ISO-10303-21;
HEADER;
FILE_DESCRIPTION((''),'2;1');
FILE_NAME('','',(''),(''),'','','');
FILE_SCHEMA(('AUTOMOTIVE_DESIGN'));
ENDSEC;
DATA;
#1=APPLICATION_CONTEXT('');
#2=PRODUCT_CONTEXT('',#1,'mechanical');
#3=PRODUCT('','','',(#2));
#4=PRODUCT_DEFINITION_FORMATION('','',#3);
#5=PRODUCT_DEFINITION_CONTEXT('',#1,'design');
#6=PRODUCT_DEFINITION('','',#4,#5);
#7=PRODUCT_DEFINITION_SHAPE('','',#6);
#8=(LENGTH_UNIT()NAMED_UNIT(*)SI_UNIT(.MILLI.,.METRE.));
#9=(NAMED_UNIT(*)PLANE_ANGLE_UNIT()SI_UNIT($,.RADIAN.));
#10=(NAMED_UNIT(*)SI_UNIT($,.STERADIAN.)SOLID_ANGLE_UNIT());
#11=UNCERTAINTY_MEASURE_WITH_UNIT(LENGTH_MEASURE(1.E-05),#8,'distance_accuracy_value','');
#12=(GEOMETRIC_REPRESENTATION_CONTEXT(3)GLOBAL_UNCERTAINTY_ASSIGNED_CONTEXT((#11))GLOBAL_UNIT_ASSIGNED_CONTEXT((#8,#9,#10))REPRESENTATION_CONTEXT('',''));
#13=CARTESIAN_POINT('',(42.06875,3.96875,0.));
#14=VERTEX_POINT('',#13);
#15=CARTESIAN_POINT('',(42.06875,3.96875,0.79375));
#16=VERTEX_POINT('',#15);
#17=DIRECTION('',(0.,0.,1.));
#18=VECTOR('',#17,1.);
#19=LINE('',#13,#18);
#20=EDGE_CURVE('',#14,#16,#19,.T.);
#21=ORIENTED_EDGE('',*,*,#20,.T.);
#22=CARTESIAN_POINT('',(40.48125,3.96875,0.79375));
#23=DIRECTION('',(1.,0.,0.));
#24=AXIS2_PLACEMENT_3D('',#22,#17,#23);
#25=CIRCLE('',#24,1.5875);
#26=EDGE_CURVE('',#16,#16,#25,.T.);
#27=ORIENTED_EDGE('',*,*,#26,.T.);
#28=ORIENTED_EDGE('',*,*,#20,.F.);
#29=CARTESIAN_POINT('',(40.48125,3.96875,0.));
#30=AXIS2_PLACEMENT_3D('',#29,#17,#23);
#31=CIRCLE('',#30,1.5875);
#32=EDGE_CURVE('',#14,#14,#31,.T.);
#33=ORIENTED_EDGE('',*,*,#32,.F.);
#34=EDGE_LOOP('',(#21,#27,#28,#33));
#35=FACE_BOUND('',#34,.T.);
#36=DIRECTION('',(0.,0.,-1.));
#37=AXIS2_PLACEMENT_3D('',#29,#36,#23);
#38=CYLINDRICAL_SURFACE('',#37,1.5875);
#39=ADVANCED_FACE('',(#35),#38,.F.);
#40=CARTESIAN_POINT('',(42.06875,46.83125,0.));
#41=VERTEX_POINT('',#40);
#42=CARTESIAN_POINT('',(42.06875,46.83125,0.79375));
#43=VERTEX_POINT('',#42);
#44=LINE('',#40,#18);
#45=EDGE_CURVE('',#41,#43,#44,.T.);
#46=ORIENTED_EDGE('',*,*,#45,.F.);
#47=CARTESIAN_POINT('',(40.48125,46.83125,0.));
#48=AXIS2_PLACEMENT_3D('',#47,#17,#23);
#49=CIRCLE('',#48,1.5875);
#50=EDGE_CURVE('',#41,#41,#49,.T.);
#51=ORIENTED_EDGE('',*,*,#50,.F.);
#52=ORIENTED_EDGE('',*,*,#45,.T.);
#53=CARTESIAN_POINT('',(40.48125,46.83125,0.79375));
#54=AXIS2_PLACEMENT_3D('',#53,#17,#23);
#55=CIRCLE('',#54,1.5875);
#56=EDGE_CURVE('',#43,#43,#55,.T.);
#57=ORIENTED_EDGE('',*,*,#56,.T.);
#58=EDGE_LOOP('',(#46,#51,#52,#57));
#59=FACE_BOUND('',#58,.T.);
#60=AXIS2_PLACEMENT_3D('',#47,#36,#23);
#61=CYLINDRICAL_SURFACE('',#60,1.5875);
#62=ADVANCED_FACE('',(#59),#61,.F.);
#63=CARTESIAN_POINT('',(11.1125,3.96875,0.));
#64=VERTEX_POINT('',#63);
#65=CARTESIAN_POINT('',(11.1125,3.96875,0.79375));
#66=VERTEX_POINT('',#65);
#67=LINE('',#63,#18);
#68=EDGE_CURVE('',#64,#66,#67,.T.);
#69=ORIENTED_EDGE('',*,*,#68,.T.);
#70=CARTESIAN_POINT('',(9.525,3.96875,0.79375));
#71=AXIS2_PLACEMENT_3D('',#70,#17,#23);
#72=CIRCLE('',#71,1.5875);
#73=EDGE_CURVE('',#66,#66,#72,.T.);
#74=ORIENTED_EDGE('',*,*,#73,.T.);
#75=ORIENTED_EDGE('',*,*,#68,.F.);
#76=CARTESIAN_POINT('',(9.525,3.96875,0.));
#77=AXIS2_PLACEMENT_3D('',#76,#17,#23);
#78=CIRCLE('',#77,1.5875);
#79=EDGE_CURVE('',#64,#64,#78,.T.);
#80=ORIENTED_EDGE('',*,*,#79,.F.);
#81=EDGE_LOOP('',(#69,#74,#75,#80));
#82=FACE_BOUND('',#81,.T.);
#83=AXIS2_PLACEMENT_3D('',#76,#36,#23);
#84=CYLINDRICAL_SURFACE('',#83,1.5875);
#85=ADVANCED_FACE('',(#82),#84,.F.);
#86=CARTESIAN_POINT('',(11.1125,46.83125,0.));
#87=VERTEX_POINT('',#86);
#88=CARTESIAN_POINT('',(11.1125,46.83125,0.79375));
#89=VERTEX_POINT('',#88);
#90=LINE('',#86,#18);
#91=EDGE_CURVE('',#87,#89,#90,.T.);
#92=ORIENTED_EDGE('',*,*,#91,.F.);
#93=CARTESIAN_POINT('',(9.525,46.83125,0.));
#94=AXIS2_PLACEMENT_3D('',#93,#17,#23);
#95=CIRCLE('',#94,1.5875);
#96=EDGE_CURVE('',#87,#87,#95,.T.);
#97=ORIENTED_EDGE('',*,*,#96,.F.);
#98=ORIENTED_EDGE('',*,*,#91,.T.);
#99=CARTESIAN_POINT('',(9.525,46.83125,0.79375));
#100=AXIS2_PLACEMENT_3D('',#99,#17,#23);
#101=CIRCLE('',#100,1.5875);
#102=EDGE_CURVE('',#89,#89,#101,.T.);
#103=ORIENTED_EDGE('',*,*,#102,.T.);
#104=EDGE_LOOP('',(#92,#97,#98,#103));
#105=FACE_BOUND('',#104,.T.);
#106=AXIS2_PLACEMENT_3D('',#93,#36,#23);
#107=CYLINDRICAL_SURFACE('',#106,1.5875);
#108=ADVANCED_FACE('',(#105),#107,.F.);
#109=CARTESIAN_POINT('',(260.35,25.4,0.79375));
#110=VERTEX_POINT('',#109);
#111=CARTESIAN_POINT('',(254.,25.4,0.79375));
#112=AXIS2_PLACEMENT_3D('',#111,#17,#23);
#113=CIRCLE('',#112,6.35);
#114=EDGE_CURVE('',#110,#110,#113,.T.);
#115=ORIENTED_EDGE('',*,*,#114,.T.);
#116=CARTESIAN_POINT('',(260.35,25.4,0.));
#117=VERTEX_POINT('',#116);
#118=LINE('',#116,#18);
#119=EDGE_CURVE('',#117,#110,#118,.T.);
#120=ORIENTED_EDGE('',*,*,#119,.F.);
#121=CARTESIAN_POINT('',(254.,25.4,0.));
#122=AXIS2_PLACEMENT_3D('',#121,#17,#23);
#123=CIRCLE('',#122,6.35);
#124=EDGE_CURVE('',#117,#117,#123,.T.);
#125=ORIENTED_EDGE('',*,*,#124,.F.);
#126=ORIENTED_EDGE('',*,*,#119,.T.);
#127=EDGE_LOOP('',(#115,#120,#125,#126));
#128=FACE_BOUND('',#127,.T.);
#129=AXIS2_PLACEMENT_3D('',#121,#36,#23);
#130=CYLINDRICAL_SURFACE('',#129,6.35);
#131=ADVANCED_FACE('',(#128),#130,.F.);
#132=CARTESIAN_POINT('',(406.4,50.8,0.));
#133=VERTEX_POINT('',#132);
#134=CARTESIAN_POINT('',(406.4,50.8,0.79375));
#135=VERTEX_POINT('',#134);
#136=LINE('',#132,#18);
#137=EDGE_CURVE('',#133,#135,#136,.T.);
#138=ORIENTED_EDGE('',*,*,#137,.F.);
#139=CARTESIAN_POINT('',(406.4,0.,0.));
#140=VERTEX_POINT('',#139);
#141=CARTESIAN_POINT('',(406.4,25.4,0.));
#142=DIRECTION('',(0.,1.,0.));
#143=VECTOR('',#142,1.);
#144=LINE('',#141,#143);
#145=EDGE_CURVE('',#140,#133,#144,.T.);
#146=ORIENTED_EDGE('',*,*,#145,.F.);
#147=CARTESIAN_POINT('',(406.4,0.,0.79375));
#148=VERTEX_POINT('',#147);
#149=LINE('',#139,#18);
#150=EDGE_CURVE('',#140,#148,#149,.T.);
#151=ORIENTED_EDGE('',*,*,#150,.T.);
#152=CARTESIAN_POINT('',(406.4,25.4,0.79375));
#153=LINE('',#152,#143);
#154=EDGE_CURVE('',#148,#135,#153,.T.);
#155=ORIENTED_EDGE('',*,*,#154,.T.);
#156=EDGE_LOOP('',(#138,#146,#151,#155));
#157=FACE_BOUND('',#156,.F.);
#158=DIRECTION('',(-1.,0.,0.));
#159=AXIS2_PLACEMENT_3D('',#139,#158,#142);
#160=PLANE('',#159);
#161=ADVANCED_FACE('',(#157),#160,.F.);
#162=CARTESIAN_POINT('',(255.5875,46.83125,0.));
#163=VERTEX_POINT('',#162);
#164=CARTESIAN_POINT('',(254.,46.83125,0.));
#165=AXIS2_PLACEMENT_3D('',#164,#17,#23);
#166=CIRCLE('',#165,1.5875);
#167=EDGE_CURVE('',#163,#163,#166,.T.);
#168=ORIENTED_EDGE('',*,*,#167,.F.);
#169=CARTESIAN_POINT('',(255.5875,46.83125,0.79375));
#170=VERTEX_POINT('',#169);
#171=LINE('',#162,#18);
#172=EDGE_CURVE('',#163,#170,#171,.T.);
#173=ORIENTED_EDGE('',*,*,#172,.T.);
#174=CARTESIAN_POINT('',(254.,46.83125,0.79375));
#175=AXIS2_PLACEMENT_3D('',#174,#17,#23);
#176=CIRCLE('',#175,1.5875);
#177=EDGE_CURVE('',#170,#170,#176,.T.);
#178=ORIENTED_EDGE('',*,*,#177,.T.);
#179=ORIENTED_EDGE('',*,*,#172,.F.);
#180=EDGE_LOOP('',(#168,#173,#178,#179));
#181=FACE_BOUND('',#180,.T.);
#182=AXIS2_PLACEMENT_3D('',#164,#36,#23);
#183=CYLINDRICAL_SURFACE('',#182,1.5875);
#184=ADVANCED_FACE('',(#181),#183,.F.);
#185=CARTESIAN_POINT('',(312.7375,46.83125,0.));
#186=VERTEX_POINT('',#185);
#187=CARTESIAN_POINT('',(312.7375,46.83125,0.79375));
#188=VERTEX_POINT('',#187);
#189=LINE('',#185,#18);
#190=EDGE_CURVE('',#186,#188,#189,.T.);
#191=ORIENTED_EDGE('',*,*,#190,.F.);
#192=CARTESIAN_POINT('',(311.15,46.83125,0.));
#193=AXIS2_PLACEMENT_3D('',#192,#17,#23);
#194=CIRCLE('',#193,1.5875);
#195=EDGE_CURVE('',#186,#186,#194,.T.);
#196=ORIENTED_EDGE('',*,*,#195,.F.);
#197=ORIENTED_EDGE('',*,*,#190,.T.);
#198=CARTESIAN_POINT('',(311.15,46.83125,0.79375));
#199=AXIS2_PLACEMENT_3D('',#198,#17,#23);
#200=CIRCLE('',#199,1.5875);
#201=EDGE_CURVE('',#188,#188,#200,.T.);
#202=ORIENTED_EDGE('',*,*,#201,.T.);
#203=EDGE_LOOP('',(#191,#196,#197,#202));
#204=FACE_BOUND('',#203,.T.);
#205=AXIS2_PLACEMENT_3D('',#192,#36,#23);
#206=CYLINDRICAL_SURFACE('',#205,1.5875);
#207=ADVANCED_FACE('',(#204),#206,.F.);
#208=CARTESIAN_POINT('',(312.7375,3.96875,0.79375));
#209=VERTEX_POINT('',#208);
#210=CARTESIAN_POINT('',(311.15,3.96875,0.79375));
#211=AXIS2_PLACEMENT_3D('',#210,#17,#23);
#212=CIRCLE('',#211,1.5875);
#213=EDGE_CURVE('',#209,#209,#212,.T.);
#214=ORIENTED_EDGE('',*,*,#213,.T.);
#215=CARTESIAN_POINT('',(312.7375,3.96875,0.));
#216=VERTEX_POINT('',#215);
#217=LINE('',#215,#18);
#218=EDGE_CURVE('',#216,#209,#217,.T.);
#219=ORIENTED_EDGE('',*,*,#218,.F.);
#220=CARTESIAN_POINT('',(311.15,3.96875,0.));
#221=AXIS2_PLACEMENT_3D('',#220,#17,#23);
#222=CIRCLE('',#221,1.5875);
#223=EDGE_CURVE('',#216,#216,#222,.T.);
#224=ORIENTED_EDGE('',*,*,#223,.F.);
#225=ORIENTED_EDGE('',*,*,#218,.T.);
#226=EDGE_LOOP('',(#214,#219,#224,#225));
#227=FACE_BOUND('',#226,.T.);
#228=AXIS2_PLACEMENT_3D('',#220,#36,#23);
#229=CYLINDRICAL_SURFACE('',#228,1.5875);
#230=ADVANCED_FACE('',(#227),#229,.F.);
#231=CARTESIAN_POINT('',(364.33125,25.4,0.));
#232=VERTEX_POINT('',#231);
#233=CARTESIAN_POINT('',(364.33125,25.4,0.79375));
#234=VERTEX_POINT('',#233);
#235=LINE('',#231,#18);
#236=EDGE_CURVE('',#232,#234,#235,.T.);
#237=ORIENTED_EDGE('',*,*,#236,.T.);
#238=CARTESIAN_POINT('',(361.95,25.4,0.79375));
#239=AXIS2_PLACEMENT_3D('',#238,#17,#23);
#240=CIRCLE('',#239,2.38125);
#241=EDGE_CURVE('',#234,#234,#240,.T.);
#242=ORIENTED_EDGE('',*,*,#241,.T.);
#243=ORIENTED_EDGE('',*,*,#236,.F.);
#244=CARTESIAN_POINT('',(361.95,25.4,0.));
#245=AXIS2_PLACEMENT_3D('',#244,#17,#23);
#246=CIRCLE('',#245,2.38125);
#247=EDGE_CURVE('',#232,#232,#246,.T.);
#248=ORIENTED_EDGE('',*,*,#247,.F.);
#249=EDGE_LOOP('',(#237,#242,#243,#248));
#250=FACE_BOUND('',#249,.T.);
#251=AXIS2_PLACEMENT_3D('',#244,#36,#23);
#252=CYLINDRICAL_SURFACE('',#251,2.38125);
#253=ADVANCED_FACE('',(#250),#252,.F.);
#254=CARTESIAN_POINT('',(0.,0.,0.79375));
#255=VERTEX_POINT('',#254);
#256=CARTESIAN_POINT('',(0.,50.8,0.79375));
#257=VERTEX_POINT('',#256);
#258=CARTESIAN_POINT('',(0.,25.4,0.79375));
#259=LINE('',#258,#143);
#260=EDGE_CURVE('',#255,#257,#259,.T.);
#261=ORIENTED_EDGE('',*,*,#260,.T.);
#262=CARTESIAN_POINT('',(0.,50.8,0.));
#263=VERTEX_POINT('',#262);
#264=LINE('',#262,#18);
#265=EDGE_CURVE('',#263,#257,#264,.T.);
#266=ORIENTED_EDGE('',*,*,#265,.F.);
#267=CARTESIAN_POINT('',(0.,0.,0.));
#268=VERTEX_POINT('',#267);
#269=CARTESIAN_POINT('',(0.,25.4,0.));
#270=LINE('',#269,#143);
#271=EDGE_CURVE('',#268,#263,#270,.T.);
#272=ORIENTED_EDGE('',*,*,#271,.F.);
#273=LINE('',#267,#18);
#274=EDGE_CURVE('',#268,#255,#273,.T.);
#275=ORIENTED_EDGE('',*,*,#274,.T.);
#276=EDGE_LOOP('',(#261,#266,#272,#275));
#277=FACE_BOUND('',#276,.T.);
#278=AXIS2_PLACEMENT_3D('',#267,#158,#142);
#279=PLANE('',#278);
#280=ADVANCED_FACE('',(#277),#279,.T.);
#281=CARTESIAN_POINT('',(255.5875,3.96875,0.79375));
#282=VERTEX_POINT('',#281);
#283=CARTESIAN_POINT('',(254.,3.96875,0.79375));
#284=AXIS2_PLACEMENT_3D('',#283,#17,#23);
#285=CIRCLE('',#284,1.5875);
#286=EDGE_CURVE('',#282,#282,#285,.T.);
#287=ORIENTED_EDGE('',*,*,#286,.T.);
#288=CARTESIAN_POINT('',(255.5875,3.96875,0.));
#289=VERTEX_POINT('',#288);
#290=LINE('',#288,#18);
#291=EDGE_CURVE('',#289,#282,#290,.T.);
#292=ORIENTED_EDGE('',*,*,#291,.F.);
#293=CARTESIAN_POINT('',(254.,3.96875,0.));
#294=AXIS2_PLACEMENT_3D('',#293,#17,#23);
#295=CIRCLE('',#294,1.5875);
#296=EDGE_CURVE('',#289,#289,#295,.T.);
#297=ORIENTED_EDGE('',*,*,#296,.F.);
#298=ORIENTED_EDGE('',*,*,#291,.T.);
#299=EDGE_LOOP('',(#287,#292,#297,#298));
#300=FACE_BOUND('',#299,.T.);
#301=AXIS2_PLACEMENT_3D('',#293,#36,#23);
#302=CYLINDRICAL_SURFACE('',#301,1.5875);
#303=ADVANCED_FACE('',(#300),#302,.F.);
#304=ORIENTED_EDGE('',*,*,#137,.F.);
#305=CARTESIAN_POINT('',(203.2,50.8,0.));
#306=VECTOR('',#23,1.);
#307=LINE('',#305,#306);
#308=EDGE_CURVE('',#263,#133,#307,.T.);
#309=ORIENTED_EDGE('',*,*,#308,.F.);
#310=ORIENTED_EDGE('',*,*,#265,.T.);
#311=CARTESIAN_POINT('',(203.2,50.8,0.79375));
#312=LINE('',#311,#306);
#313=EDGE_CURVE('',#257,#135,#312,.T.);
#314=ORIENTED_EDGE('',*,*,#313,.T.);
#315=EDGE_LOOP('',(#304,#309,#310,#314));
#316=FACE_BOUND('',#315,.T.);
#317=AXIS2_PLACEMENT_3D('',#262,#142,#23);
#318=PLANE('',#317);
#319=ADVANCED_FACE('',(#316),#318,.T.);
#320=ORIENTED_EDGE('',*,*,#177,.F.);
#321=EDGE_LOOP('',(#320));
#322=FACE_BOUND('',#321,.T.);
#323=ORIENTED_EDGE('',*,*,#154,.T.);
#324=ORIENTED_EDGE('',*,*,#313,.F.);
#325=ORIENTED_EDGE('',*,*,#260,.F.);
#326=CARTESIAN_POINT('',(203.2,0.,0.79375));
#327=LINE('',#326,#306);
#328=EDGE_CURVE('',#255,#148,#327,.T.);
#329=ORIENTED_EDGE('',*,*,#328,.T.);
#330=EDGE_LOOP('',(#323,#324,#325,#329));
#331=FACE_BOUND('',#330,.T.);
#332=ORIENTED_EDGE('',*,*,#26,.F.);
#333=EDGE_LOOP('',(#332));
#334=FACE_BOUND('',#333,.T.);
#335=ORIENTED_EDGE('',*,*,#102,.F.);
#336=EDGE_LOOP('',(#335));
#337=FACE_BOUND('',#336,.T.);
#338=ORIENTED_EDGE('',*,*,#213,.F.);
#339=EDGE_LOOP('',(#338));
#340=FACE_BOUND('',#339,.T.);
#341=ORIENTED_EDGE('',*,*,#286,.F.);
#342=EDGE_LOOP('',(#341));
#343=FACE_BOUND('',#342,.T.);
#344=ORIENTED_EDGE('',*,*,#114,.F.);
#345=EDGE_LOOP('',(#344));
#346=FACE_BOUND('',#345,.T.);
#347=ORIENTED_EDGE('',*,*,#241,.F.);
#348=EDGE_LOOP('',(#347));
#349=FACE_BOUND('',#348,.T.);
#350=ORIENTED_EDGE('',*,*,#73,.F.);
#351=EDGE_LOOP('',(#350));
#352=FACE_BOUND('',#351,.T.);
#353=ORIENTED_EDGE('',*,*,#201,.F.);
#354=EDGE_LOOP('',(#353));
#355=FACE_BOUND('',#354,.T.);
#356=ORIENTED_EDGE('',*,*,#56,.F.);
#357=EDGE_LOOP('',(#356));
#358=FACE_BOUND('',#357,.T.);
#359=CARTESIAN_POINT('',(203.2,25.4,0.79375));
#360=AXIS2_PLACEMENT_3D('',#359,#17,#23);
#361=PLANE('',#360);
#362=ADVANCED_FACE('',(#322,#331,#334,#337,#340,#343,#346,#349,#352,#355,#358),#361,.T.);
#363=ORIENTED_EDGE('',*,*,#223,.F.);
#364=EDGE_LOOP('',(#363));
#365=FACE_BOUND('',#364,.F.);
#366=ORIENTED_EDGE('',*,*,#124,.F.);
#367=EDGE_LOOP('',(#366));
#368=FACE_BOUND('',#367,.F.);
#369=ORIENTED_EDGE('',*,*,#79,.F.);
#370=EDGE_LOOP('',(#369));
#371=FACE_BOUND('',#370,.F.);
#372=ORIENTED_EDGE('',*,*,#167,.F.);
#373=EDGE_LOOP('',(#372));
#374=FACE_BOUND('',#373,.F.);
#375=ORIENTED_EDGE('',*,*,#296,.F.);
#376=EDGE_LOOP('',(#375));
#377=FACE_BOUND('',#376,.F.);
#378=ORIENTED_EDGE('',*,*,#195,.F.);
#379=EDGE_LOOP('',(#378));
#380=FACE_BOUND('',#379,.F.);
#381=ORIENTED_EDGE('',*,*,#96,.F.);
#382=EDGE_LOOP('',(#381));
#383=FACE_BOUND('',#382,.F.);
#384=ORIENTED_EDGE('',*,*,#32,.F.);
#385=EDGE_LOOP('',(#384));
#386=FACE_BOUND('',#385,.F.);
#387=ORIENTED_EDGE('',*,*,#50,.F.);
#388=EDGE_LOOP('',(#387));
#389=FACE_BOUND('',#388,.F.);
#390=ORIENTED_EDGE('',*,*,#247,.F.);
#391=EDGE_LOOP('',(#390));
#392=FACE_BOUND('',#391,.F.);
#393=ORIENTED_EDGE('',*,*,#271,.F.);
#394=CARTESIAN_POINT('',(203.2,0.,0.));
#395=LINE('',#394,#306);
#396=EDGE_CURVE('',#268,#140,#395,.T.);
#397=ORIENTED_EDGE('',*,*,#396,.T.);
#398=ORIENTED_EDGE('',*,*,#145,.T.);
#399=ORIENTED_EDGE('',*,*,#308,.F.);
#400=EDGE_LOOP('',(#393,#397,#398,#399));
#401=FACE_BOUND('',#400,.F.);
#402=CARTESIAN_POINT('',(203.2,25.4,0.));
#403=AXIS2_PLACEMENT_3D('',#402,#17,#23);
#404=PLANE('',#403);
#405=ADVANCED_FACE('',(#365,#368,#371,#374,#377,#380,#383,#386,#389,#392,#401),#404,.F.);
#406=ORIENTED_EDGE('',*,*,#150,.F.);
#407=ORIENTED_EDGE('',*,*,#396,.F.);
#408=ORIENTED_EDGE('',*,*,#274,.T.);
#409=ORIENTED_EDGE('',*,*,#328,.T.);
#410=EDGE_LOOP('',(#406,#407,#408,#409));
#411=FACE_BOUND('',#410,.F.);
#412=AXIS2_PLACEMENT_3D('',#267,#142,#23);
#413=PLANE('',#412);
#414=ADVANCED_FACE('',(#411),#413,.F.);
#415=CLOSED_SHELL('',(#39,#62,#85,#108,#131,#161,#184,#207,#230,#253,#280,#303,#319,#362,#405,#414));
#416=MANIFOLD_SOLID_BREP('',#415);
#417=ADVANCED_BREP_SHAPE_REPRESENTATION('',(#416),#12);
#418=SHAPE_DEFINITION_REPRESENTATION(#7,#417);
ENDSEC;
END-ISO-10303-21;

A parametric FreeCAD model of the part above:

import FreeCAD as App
import Part
import Sketcher
from FreeCAD import Vector
Q = App.Units.Quantity


def add_polygon(sketch, points):
    """Adds a closed chain of lines whose ends are joined by coincident constraints."""
    first, n = sketch.GeometryCount, len(points)
    for a, b in zip(points, points[1:] + points[:1]):
        sketch.addGeometry(Part.LineSegment(App.Vector(*a, 0), App.Vector(*b, 0)), False)
    for i in range(n):
        sketch.addConstraint(Sketcher.Constraint("Coincident", first + i, 2, first + (i + 1) % n, 1))

doc = App.newDocument("Part")
body = doc.addObject("PartDesign::Body", "Body")

# Sketch on XY plane
sketch1 = body.newObject("Sketcher::SketchObject", "Sketch")
sketch1.AttachmentSupport = (doc.getObject("XY_Plane"), [""])
sketch1.MapMode = "FlatFace"
add_polygon(sketch1, [(0, 50.8), (0, 0), (406.4, 0), (406.4, 50.8)])  # lines 0-3
sketch1.addGeometry(Part.Circle(Vector(9.5, 4, 0), Vector(0, 0, 1), 1.6), False)  # 4
sketch1.addGeometry(Part.Circle(Vector(40.5, 4, 0), Vector(0, 0, 1), 1.6), False)  # 5
sketch1.addGeometry(Part.Circle(Vector(254, 4, 0), Vector(0, 0, 1), 1.6), False)  # 6
sketch1.addGeometry(Part.Circle(Vector(311.1, 4, 0), Vector(0, 0, 1), 1.6), False)  # 7
sketch1.addGeometry(Part.Circle(Vector(9.5, 46.8, 0), Vector(0, 0, 1), 1.6), False)  # 8
sketch1.addGeometry(Part.Circle(Vector(40.5, 46.8, 0), Vector(0, 0, 1), 1.6), False)  # 9
sketch1.addGeometry(Part.Circle(Vector(254, 25.4, 0), Vector(0, 0, 1), 6.3), False)  # 10
sketch1.addGeometry(Part.Circle(Vector(361.9, 25.4, 0), Vector(0, 0, 1), 2.4), False)  # 11
sketch1.addGeometry(Part.Circle(Vector(254, 46.8, 0), Vector(0, 0, 1), 1.6), False)  # 12
sketch1.addGeometry(Part.Circle(Vector(311.1, 46.8, 0), Vector(0, 0, 1), 1.6), False)  # 13
sketch1.addConstraint([
    Sketcher.Constraint("Vertical", 0),
    Sketcher.Constraint("Horizontal", 1),
    Sketcher.Constraint("Vertical", 2),
    Sketcher.Constraint("Horizontal", 3),
    Sketcher.Constraint("Coincident", 0, 2, -1, 1),
    Sketcher.Constraint("Equal", 4, 5),
    Sketcher.Constraint("Equal", 5, 6),
    Sketcher.Constraint("Equal", 6, 7),
    Sketcher.Constraint("Equal", 7, 8),
    Sketcher.Constraint("Equal", 8, 9),
    Sketcher.Constraint("Equal", 9, 12),
    Sketcher.Constraint("Equal", 12, 13),
    Sketcher.Constraint("Horizontal", 4, 3, 5, 3),
    Sketcher.Constraint("Horizontal", 5, 3, 6, 3),
    Sketcher.Constraint("Horizontal", 6, 3, 7, 3),
    Sketcher.Constraint("Horizontal", 8, 3, 9, 3),
    Sketcher.Constraint("Horizontal", 10, 3, 11, 3),
    Sketcher.Constraint("Horizontal", 9, 3, 12, 3),
    Sketcher.Constraint("Horizontal", 12, 3, 13, 3),
    Sketcher.Constraint("Vertical", 4, 3, 8, 3),
    Sketcher.Constraint("Vertical", 5, 3, 9, 3),
    Sketcher.Constraint("Vertical", 6, 3, 10, 3),
    Sketcher.Constraint("Vertical", 10, 3, 12, 3),
    Sketcher.Constraint("Vertical", 7, 3, 13, 3),
    Sketcher.Constraint("Diameter", 10, Q("0.5 in")),
    Sketcher.Constraint("DistanceX", 1, 1, 1, 2, Q("16 in")),
    Sketcher.Constraint("DistanceY", 0, 2, 0, 1, Q("2 in")),
    Sketcher.Constraint("Diameter", 4, Q("0.125 in")),
    Sketcher.Constraint("Diameter", 11, Q("0.1875 in")),
    Sketcher.Constraint("DistanceX", -1, 1, 6, 3, Q("10 in")),
    Sketcher.Constraint("DistanceY", -1, 1, 10, 3, Q("1 in")),
    Sketcher.Constraint("DistanceX", 7, 3, 11, 3, Q("2 in")),
    Sketcher.Constraint("DistanceX", -1, 1, 7, 3, Q("12.25 in")),
    Sketcher.Constraint("DistanceX", -1, 1, 4, 3, Q("0.375 in")),
    Sketcher.Constraint("DistanceY", -1, 1, 4, 3, Q("0.15625 in")),
    Sketcher.Constraint("DistanceX", -1, 1, 5, 3, Q("1.59375 in")),
    Sketcher.Constraint("DistanceY", -1, 1, 8, 3, Q("1.84375 in")),
])
pad1 = body.newObject("PartDesign::Pad", "Pad")
pad1.Profile = sketch1
pad1.Length = Q("0.03125 in")

doc.recompute()
